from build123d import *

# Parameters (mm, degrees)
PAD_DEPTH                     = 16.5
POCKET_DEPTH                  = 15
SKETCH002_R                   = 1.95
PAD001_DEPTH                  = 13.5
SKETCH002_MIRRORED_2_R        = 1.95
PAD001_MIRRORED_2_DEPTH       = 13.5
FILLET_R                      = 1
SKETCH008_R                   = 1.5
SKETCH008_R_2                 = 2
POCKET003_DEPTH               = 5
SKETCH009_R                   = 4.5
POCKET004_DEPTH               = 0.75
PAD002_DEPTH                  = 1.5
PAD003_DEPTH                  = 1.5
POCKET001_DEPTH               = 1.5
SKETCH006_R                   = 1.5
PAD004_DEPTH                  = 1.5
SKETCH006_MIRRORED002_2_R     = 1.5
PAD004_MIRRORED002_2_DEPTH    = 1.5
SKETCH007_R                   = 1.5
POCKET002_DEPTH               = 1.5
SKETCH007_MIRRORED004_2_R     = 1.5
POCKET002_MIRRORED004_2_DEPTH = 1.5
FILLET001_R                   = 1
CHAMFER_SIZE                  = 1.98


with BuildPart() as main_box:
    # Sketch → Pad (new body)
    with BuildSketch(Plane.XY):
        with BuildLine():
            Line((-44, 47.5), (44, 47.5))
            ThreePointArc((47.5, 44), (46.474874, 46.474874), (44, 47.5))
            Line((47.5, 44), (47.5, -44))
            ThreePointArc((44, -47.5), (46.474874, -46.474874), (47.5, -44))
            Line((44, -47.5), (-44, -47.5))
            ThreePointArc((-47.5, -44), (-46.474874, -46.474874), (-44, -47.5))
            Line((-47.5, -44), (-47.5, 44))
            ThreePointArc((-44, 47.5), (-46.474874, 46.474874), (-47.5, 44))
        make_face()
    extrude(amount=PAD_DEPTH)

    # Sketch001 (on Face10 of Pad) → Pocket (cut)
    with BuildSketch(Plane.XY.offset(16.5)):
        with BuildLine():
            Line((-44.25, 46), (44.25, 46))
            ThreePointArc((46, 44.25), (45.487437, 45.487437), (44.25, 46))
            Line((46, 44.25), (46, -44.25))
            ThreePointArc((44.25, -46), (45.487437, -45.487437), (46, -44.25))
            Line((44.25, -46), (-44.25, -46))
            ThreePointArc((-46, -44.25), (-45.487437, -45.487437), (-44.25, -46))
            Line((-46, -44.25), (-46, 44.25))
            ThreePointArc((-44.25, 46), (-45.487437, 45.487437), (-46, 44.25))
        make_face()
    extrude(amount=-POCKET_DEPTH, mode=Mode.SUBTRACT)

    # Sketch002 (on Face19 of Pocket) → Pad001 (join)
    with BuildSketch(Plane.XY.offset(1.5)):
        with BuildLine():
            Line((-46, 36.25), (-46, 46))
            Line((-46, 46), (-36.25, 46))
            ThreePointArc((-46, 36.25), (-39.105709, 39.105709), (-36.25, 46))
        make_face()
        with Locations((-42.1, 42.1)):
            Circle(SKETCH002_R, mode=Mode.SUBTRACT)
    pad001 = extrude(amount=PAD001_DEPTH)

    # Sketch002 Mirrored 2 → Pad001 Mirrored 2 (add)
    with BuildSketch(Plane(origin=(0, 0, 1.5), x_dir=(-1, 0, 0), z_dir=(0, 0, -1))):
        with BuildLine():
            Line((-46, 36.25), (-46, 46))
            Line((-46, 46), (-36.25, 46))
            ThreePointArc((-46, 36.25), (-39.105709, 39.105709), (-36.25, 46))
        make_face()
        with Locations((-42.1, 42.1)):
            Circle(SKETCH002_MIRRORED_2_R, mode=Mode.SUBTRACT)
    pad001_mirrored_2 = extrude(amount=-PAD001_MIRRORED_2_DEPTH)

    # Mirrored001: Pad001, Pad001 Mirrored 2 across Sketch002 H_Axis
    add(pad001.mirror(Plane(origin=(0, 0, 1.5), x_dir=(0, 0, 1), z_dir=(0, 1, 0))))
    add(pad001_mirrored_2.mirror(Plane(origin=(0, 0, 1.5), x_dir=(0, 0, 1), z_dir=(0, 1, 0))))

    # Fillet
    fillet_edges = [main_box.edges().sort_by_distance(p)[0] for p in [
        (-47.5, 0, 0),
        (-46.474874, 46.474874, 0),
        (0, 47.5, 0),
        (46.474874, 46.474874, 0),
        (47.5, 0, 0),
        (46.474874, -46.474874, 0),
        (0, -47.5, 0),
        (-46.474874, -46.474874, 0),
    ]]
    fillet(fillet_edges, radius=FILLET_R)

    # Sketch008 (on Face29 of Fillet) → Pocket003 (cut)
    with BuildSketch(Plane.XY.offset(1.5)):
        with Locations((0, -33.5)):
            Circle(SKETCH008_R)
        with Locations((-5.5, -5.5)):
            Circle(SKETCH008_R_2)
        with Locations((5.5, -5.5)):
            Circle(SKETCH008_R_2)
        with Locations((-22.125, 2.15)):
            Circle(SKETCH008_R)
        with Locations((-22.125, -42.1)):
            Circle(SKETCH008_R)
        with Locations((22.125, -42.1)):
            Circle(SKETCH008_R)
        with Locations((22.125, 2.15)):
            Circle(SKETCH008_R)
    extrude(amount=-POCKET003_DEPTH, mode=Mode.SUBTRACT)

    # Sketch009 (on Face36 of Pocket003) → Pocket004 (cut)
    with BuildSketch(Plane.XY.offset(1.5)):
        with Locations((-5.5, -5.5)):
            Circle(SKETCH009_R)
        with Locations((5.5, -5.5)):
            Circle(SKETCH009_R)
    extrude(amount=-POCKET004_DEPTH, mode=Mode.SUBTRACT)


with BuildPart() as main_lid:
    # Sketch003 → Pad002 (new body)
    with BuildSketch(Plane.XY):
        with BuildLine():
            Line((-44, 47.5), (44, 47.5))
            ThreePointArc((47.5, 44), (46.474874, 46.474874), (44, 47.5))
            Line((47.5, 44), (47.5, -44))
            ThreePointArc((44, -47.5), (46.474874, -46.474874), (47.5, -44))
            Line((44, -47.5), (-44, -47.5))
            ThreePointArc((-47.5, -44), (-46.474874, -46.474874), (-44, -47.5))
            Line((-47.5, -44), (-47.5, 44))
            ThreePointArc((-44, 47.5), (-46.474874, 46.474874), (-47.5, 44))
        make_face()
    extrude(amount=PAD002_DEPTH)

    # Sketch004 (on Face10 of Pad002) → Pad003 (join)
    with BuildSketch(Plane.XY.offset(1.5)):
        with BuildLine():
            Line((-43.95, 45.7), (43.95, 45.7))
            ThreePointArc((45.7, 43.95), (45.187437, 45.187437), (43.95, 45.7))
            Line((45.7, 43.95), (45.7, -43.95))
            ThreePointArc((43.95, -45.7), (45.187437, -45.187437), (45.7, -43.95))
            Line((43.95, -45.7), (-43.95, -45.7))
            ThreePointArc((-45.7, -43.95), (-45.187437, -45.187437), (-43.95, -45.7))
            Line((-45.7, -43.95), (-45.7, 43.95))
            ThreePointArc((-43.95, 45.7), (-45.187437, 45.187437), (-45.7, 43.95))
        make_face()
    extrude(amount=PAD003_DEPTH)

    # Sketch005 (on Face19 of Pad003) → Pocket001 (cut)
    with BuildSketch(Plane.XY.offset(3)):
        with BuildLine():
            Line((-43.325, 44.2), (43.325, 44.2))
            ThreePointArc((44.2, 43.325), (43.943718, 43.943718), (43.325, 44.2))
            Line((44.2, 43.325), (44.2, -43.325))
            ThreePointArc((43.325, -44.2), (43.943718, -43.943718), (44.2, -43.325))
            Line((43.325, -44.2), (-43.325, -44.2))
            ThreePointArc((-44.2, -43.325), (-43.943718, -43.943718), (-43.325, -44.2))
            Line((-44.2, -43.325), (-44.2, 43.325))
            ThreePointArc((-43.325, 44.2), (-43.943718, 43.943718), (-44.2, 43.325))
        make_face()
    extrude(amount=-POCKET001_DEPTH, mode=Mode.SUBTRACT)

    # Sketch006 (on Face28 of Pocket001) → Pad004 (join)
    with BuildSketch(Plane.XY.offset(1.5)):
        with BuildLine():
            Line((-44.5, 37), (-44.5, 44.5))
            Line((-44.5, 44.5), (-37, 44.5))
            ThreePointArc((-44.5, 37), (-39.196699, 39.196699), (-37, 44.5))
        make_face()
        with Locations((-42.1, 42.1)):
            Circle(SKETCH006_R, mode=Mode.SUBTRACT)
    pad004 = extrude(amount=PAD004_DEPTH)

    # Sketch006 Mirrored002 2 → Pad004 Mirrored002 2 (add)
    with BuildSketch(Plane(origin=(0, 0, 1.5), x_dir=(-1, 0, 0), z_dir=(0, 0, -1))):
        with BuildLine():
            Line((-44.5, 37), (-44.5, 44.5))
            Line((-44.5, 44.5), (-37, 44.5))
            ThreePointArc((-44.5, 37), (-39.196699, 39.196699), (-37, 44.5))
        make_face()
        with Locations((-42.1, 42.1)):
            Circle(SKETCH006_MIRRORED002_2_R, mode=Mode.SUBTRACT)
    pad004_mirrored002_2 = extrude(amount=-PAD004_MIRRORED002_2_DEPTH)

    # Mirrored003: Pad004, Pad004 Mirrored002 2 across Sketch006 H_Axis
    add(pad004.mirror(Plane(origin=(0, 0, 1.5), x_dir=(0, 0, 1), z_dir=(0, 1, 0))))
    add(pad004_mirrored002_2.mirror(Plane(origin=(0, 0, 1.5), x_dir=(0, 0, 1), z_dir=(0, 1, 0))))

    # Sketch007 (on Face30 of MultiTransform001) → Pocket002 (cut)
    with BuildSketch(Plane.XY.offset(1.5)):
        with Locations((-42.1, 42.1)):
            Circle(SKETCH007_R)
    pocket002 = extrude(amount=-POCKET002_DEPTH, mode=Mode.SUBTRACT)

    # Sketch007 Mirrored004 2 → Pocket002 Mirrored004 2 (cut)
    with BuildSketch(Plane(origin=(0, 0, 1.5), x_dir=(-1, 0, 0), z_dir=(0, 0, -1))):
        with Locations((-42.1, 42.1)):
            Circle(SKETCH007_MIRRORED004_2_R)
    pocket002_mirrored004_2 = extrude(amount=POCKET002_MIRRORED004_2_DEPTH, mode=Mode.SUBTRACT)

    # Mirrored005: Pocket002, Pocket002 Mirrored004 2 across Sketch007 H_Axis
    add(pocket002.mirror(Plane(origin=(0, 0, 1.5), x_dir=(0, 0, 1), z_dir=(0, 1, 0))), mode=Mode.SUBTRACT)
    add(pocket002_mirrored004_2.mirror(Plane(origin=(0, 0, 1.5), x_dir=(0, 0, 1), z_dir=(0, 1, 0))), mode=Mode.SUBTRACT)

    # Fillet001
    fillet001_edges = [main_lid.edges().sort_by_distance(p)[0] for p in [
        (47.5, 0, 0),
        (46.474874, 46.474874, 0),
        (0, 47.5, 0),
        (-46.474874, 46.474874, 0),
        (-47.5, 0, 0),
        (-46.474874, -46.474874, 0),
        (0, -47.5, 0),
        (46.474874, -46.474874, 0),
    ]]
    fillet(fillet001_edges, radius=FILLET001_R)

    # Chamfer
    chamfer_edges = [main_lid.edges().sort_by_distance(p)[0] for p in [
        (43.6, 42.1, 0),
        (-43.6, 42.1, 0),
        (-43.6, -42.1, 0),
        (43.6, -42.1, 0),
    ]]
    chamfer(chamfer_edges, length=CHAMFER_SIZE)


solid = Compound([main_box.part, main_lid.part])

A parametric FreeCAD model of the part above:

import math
import FreeCAD as App
import Part
import Sketcher
Q = App.Units.Quantity


def edges_at(feature, points):
    """Names of the edges that pass closest to the given points."""
    edges = feature.Shape.Edges
    near = lambda p: min(range(len(edges)), key=lambda i: edges[i].distToShape(Part.Vertex(*p))[0])
    return sorted({f"Edge{near(p) + 1}" for p in points})

doc = App.newDocument("Part")
params = doc.addObject("Spreadsheet::Sheet", "Params")
for row, (alias, value) in enumerate([
    ("sketch1_radius", "3.499999 mm"),
    ("sketch1_width", "88 mm"),
    ("pad1_length", "16.5 mm"),
    ("sketch2_radius", "1.75 mm"),
    ("sketch2_width", "88.5 mm"),
    ("pocket1_length", "15 mm"),
    ("sketch3_diameter", "3.9 mm"),
    ("sketch3_radius", "9.75 mm"),
    ("pad2_length", "13.5 mm"),
    ("sketch4_diameter", "3.9 mm"),
    ("sketch4_radius", "9.75 mm"),
    ("pad3_length", "13.5 mm"),
    ("fillet_radius", "1 mm"),
    ("sketch5_diameter", "3 mm"),
    ("sketch5_diameter2", "4 mm"),
    ("pocket2_length", "5 mm"),
    ("sketch6_diameter", "9 mm"),
    ("pocket3_length", "0.75 mm"),
    ("sketch7_radius", "3.499999 mm"),
    ("sketch7_width", "88 mm"),
    ("pad4_length", "1.5 mm"),
    ("sketch8_radius", "1.75 mm"),
    ("sketch8_width", "87.9 mm"),
    ("pad5_length", "1.5 mm"),
    ("sketch9_width", "86.65 mm"),
    ("pocket4_length", "1.5 mm"),
    ("sketch10_diameter", "3 mm"),
    ("sketch10_radius", "7.5 mm"),
    ("pad6_length", "1.5 mm"),
    ("sketch11_diameter", "3 mm"),
    ("sketch11_radius", "7.5 mm"),
    ("pad7_length", "1.5 mm"),
    ("sketch12_diameter", "3 mm"),
    ("pocket5_length", "1.5 mm"),
    ("sketch13_diameter", "3 mm"),
    ("pocket6_length", "1.5 mm"),
    ("fillet2_radius", "1 mm"),
    ("chamfer_size", "1.98 mm"),
], start=1):
    params.set(f"A{row}", alias)
    params.set(f"B{row}", "=" + value)
    params.setAlias(f"B{row}", alias)

body = doc.addObject("PartDesign::Body", "Body")

# Sketch on XY plane
sketch1 = body.newObject("Sketcher::SketchObject", "Sketch")
sketch1.AttachmentSupport = (doc.getObject("XY_Plane"), [""])
sketch1.MapMode = "FlatFace"
sketch1.addGeometry(Part.LineSegment(App.Vector(44, 47.5, 0), App.Vector(-44, 47.5, 0)), False)
sketch1.addGeometry(Part.ArcOfCircle(Part.Circle(App.Vector(-44, 44, 0), App.Vector(0, 0, 1), 3.5), math.radians(90), math.radians(180)), False)
sketch1.addGeometry(Part.LineSegment(App.Vector(-47.5, 44, 0), App.Vector(-47.5, -44, 0)), False)
sketch1.addGeometry(Part.ArcOfCircle(Part.Circle(App.Vector(-44, -44, 0), App.Vector(0, 0, 1), 3.5), math.radians(180), math.radians(270)), False)
sketch1.addGeometry(Part.LineSegment(App.Vector(-44, -47.5, 0), App.Vector(44, -47.5, 0)), False)
sketch1.addGeometry(Part.ArcOfCircle(Part.Circle(App.Vector(44, -44, 0), App.Vector(0, 0, 1), 3.5), math.radians(-90), math.radians(0)), False)
sketch1.addGeometry(Part.LineSegment(App.Vector(47.5, -44, 0), App.Vector(47.5, 44, 0)), False)
sketch1.addGeometry(Part.ArcOfCircle(Part.Circle(App.Vector(44, 44, 0), App.Vector(0, 0, 1), 3.5), math.radians(0), math.radians(90)), False)
sketch1.addConstraint(Sketcher.Constraint("Tangent", 0, 2, 1, 1))
sketch1.addConstraint(Sketcher.Constraint("Tangent", 1, 2, 2, 1))
sketch1.addConstraint(Sketcher.Constraint("Tangent", 2, 2, 3, 1))
sketch1.addConstraint(Sketcher.Constraint("Tangent", 3, 2, 4, 1))
sketch1.addConstraint(Sketcher.Constraint("Tangent", 4, 2, 5, 1))
sketch1.addConstraint(Sketcher.Constraint("Tangent", 5, 2, 6, 1))
sketch1.addConstraint(Sketcher.Constraint("Tangent", 6, 2, 7, 1))
sketch1.addConstraint(Sketcher.Constraint("Tangent", 7, 2, 0, 1))
sketch1.addConstraint(Sketcher.Constraint("Horizontal", 0))
sketch1.addConstraint(Sketcher.Constraint("Vertical", 2))
sketch1.addConstraint(Sketcher.Constraint("Horizontal", 4))
sketch1.addConstraint(Sketcher.Constraint("Vertical", 6))
sketch1.addConstraint(Sketcher.Constraint("Equal", 1, 3))
sketch1.addConstraint(Sketcher.Constraint("Equal", 3, 5))
sketch1.addConstraint(Sketcher.Constraint("Equal", 5, 7))
sketch1.addConstraint(Sketcher.Constraint("Symmetric", 1, 3, 5, 3, -1, 1))
sketch1.addConstraint(Sketcher.Constraint("Equal", 4, 2))
sketch1.addConstraint(Sketcher.Constraint("Radius", 1, Q("3.499999 mm")))
sketch1.addConstraint(Sketcher.Constraint("DistanceX", 0, 2, 0, 1, Q("88 mm")))
sketch1.setExpression("Constraints[17]", "Params.sketch1_radius")
sketch1.setExpression("Constraints[18]", "Params.sketch1_width")
pad1 = body.newObject("PartDesign::Pad", "Pad")
pad1.Profile = sketch1
pad1.setExpression("Length", "Params.pad1_length")

# Sketch on XY plane
sketch2 = body.newObject("Sketcher::SketchObject", "Sketch001")
sketch2.AttachmentSupport = (doc.getObject("XY_Plane"), [""])
sketch2.MapMode = "FlatFace"
sketch2.AttachmentOffset = App.Placement(App.Vector(0, 0, 16.5), App.Rotation())
sketch2.addGeometry(Part.LineSegment(App.Vector(44.2, 46, 0), App.Vector(-44.2, 46, 0)), False)
sketch2.addGeometry(Part.ArcOfCircle(Part.Circle(App.Vector(-44.3, 44.3, 0), App.Vector(0, 0, 1), 1.7), math.radians(90), math.radians(180)), False)
sketch2.addGeometry(Part.LineSegment(App.Vector(-46, 44.2, 0), App.Vector(-46, -44.2, 0)), False)
sketch2.addGeometry(Part.ArcOfCircle(Part.Circle(App.Vector(-44.3, -44.3, 0), App.Vector(0, 0, 1), 1.7), math.radians(180), math.radians(270)), False)
sketch2.addGeometry(Part.LineSegment(App.Vector(-44.2, -46, 0), App.Vector(44.2, -46, 0)), False)
sketch2.addGeometry(Part.ArcOfCircle(Part.Circle(App.Vector(44.3, -44.3, 0), App.Vector(0, 0, 1), 1.7), math.radians(-90), math.radians(0)), False)
sketch2.addGeometry(Part.LineSegment(App.Vector(46, -44.2, 0), App.Vector(46, 44.2, 0)), False)
sketch2.addGeometry(Part.ArcOfCircle(Part.Circle(App.Vector(44.3, 44.3, 0), App.Vector(0, 0, 1), 1.7), math.radians(0), math.radians(90)), False)
sketch2.addConstraint(Sketcher.Constraint("Tangent", 0, 2, 1, 1))
sketch2.addConstraint(Sketcher.Constraint("Tangent", 1, 2, 2, 1))
sketch2.addConstraint(Sketcher.Constraint("Tangent", 2, 2, 3, 1))
sketch2.addConstraint(Sketcher.Constraint("Tangent", 3, 2, 4, 1))
sketch2.addConstraint(Sketcher.Constraint("Tangent", 4, 2, 5, 1))
sketch2.addConstraint(Sketcher.Constraint("Tangent", 5, 2, 6, 1))
sketch2.addConstraint(Sketcher.Constraint("Tangent", 6, 2, 7, 1))
sketch2.addConstraint(Sketcher.Constraint("Tangent", 7, 2, 0, 1))
sketch2.addConstraint(Sketcher.Constraint("Horizontal", 0))
sketch2.addConstraint(Sketcher.Constraint("Vertical", 2))
sketch2.addConstraint(Sketcher.Constraint("Horizontal", 4))
sketch2.addConstraint(Sketcher.Constraint("Vertical", 6))
sketch2.addConstraint(Sketcher.Constraint("Equal", 1, 3))
sketch2.addConstraint(Sketcher.Constraint("Equal", 3, 5))
sketch2.addConstraint(Sketcher.Constraint("Equal", 5, 7))
sketch2.addConstraint(Sketcher.Constraint("Symmetric", 1, 3, 5, 3, -1, 1))
sketch2.addConstraint(Sketcher.Constraint("Equal", 4, 2))
sketch2.addConstraint(Sketcher.Constraint("Radius", 1, Q("1.75 mm")))
sketch2.addConstraint(Sketcher.Constraint("DistanceX", 0, 2, 0, 1, Q("88.5 mm")))
sketch2.setExpression("Constraints[17]", "Params.sketch2_radius")
sketch2.setExpression("Constraints[18]", "Params.sketch2_width")
pocket1 = body.newObject("PartDesign::Pocket", "Pocket")
pocket1.Profile = sketch2
pocket1.setExpression("Length", "Params.pocket1_length")

# Sketch on XY plane
sketch3 = body.newObject("Sketcher::SketchObject", "Sketch002")
sketch3.AttachmentSupport = (doc.getObject("XY_Plane"), [""])
sketch3.MapMode = "FlatFace"
sketch3.AttachmentOffset = App.Placement(App.Vector(0, 0, 1.5), App.Rotation())
sketch3.addGeometry(Part.LineSegment(App.Vector(-46, 46, 0), App.Vector(-46, 36.2, 0)), False)
sketch3.addGeometry(Part.ArcOfCircle(Part.Circle(App.Vector(-46, 46, 0), App.Vector(0, 0, 1), 9.8), math.radians(-90), math.radians(0)), False)
sketch3.addGeometry(Part.LineSegment(App.Vector(-36.2, 46, 0), App.Vector(-46, 46, 0)), False)
sketch3.addGeometry(Part.Circle(App.Vector(-42.1, 42.1, 0), App.Vector(0, 0, 1), 1.9), False)
sketch3.addConstraint(Sketcher.Constraint("Coincident", 0, 2, 1, 1))
sketch3.addConstraint(Sketcher.Constraint("Coincident", 1, 2, 2, 1))
sketch3.addConstraint(Sketcher.Constraint("Coincident", 2, 2, 0, 1))
sketch3.addConstraint(Sketcher.Constraint("Vertical", 0))
sketch3.addConstraint(Sketcher.Constraint("Horizontal", 2))
sketch3.addConstraint(Sketcher.Constraint("Coincident", 2, 2, 1, 3))
sketch3.addConstraint(Sketcher.Constraint("Diameter", 3, Q("3.9 mm")))
sketch3.addConstraint(Sketcher.Constraint("Radius", 1, Q("9.75 mm")))
sketch3.addConstraint(Sketcher.Constraint("DistanceX", 1, 3, -1, 1, Q("46 mm")))
sketch3.addConstraint(Sketcher.Constraint("DistanceY", -1, 1, 1, 3, Q("46 mm")))
sketch3.addConstraint(Sketcher.Constraint("DistanceX", 3, 3, -1, 1, Q("42.1 mm")))
sketch3.addConstraint(Sketcher.Constraint("DistanceY", -1, 1, 3, 3, Q("42.1 mm")))
sketch3.setExpression("Constraints[6]", "Params.sketch3_diameter")
sketch3.setExpression("Constraints[7]", "Params.sketch3_radius")
pad2 = body.newObject("PartDesign::Pad", "Pad001")
pad2.Profile = sketch3
pad2.setExpression("Length", "Params.pad2_length")

# Sketch on XY plane
sketch4 = body.newObject("Sketcher::SketchObject", "Sketch003")
sketch4.AttachmentSupport = (doc.getObject("XY_Plane"), [""])
sketch4.MapMode = "FlatFace"
sketch4.AttachmentOffset = App.Placement(App.Vector(0, 0, 1.5), App.Rotation())
sketch4.addGeometry(Part.LineSegment(App.Vector(46, 46, 0), App.Vector(46, 36.2, 0)), False)
sketch4.addGeometry(Part.ArcOfCircle(Part.Circle(App.Vector(46, 46, 0), App.Vector(0, 0, 1), 9.8), math.radians(-180), math.radians(-90)), False)
sketch4.addGeometry(Part.LineSegment(App.Vector(36.2, 46, 0), App.Vector(46, 46, 0)), False)
sketch4.addGeometry(Part.Circle(App.Vector(42.1, 42.1, 0), App.Vector(0, 0, 1), 1.9), False)
sketch4.addConstraint(Sketcher.Constraint("Coincident", 0, 2, 1, 2))
sketch4.addConstraint(Sketcher.Constraint("Coincident", 1, 1, 2, 1))
sketch4.addConstraint(Sketcher.Constraint("Coincident", 2, 2, 0, 1))
sketch4.addConstraint(Sketcher.Constraint("Vertical", 0))
sketch4.addConstraint(Sketcher.Constraint("Horizontal", 2))
sketch4.addConstraint(Sketcher.Constraint("Coincident", 2, 2, 1, 3))
sketch4.addConstraint(Sketcher.Constraint("Diameter", 3, Q("3.9 mm")))
sketch4.addConstraint(Sketcher.Constraint("Radius", 1, Q("9.75 mm")))
sketch4.addConstraint(Sketcher.Constraint("DistanceX", -1, 1, 1, 3, Q("46 mm")))
sketch4.addConstraint(Sketcher.Constraint("DistanceY", -1, 1, 1, 3, Q("46 mm")))
sketch4.addConstraint(Sketcher.Constraint("DistanceX", -1, 1, 3, 3, Q("42.1 mm")))
sketch4.addConstraint(Sketcher.Constraint("DistanceY", -1, 1, 3, 3, Q("42.1 mm")))
sketch4.setExpression("Constraints[6]", "Params.sketch4_diameter")
sketch4.setExpression("Constraints[7]", "Params.sketch4_radius")
pad3 = body.newObject("PartDesign::Pad", "Pad002")
pad3.Profile = sketch4
pad3.setExpression("Length", "Params.pad3_length")
doc.recompute()

mirrored = body.newObject("PartDesign::Mirrored", "Mirrored")
mirrored.Originals = [pad2, pad3]
mirrored.MirrorPlane = (doc.getObject("XZ_Plane"), [""])
body.Tip = mirrored
doc.recompute()

fillet = body.newObject("PartDesign::Fillet", "Fillet")
fillet.Base = (mirrored, edges_at(mirrored, [
    (-47.5, 0, 0),
    (-46.475, 46.475, 0),
    (0, 47.5, 0),
    (46.475, 46.475, 0),
    (47.5, 0, 0),
    (46.475, -46.475, 0),
    (0, -47.5, 0),
    (-46.475, -46.475, 0),
]))
fillet.setExpression("Radius", "Params.fillet_radius")

# Sketch on XY plane
sketch5 = body.newObject("Sketcher::SketchObject", "Sketch004")
sketch5.AttachmentSupport = (doc.getObject("XY_Plane"), [""])
sketch5.MapMode = "FlatFace"
sketch5.AttachmentOffset = App.Placement(App.Vector(0, 0, 1.5), App.Rotation())
sketch5.addGeometry(Part.Circle(App.Vector(0, -33.5, 0), App.Vector(0, 0, 1), 1.5), False)
sketch5.addGeometry(Part.Circle(App.Vector(-5.5, -5.5, 0), App.Vector(0, 0, 1), 2), False)
sketch5.addGeometry(Part.Circle(App.Vector(5.5, -5.5, 0), App.Vector(0, 0, 1), 2), False)
sketch5.addGeometry(Part.Circle(App.Vector(-22.1, 2.1, 0), App.Vector(0, 0, 1), 1.5), False)
sketch5.addGeometry(Part.Circle(App.Vector(-22.1, -42.1, 0), App.Vector(0, 0, 1), 1.5), False)
sketch5.addGeometry(Part.Circle(App.Vector(22.1, -42.1, 0), App.Vector(0, 0, 1), 1.5), False)
sketch5.addGeometry(Part.Circle(App.Vector(22.1, 2.1, 0), App.Vector(0, 0, 1), 1.5), False)
sketch5.addConstraint(Sketcher.Constraint("Equal", 1, 2))
sketch5.addConstraint(Sketcher.Constraint("Equal", 0, 3))
sketch5.addConstraint(Sketcher.Constraint("Equal", 3, 4))
sketch5.addConstraint(Sketcher.Constraint("Equal", 4, 5))
sketch5.addConstraint(Sketcher.Constraint("Equal", 5, 6))
sketch5.addConstraint(Sketcher.Constraint("Symmetric", 1, 3, 2, 3, -2))
sketch5.addConstraint(Sketcher.Constraint("Symmetric", 4, 3, 5, 3, -2))
sketch5.addConstraint(Sketcher.Constraint("Symmetric", 3, 3, 6, 3, -2))
sketch5.addConstraint(Sketcher.Constraint("PointOnObject", 0, 3, -2))
sketch5.addConstraint(Sketcher.Constraint("Vertical", 3, 3, 4, 3))
sketch5.addConstraint(Sketcher.Constraint("Diameter", 0, Q("3 mm")))
sketch5.addConstraint(Sketcher.Constraint("Diameter", 1, Q("4 mm")))
sketch5.addConstraint(Sketcher.Constraint("DistanceY", 0, 3, 1, 3, Q("28 mm")))
sketch5.addConstraint(Sketcher.Constraint("DistanceX", 1, 3, 2, 3, Q("11 mm")))
sketch5.addConstraint(Sketcher.Constraint("DistanceY", 0, 3, -1, 1, Q("33.5 mm")))
sketch5.addConstraint(Sketcher.Constraint("DistanceY", 4, 3, -1, 1, Q("42.1 mm")))
sketch5.addConstraint(Sketcher.Constraint("DistanceY", -1, 1, 3, 3, Q("2.15 mm")))
sketch5.addConstraint(Sketcher.Constraint("DistanceX", 4, 3, 5, 3, Q("44.25 mm")))
sketch5.setExpression("Constraints[10]", "Params.sketch5_diameter")
sketch5.setExpression("Constraints[11]", "Params.sketch5_diameter2")
pocket2 = body.newObject("PartDesign::Pocket", "Pocket001")
pocket2.Profile = sketch5
pocket2.setExpression("Length", "Params.pocket2_length")

# Sketch on XY plane
sketch6 = body.newObject("Sketcher::SketchObject", "Sketch005")
sketch6.AttachmentSupport = (doc.getObject("XY_Plane"), [""])
sketch6.MapMode = "FlatFace"
sketch6.AttachmentOffset = App.Placement(App.Vector(0, 0, 1.5), App.Rotation())
sketch6.addGeometry(Part.Circle(App.Vector(-5.5, -5.5, 0), App.Vector(0, 0, 1), 4.5), False)
sketch6.addGeometry(Part.Circle(App.Vector(5.5, -5.5, 0), App.Vector(0, 0, 1), 4.5), False)
sketch6.addConstraint(Sketcher.Constraint("Equal", 0, 1))
sketch6.addConstraint(Sketcher.Constraint("Symmetric", 0, 3, 1, 3, -2))
sketch6.addConstraint(Sketcher.Constraint("Diameter", 0, Q("9 mm")))
sketch6.addConstraint(Sketcher.Constraint("DistanceX", 0, 3, 1, 3, Q("11 mm")))
sketch6.addConstraint(Sketcher.Constraint("DistanceY", 0, 3, -1, 1, Q("5.5 mm")))
sketch6.setExpression("Constraints[2]", "Params.sketch6_diameter")
pocket3 = body.newObject("PartDesign::Pocket", "Pocket002")
pocket3.Profile = sketch6
pocket3.setExpression("Length", "Params.pocket3_length")
body2 = doc.addObject("PartDesign::Body", "Body001")

# Sketch on XY plane
sketch7 = body2.newObject("Sketcher::SketchObject", "Sketch006")
sketch7.AttachmentSupport = (doc.getObject("XY_Plane001"), [""])
sketch7.MapMode = "FlatFace"
sketch7.addGeometry(Part.LineSegment(App.Vector(44, 47.5, 0), App.Vector(-44, 47.5, 0)), False)
sketch7.addGeometry(Part.ArcOfCircle(Part.Circle(App.Vector(-44, 44, 0), App.Vector(0, 0, 1), 3.5), math.radians(90), math.radians(180)), False)
sketch7.addGeometry(Part.LineSegment(App.Vector(-47.5, 44, 0), App.Vector(-47.5, -44, 0)), False)
sketch7.addGeometry(Part.ArcOfCircle(Part.Circle(App.Vector(-44, -44, 0), App.Vector(0, 0, 1), 3.5), math.radians(180), math.radians(270)), False)
sketch7.addGeometry(Part.LineSegment(App.Vector(-44, -47.5, 0), App.Vector(44, -47.5, 0)), False)
sketch7.addGeometry(Part.ArcOfCircle(Part.Circle(App.Vector(44, -44, 0), App.Vector(0, 0, 1), 3.5), math.radians(-90), math.radians(0)), False)
sketch7.addGeometry(Part.LineSegment(App.Vector(47.5, -44, 0), App.Vector(47.5, 44, 0)), False)
sketch7.addGeometry(Part.ArcOfCircle(Part.Circle(App.Vector(44, 44, 0), App.Vector(0, 0, 1), 3.5), math.radians(0), math.radians(90)), False)
sketch7.addConstraint(Sketcher.Constraint("Tangent", 0, 2, 1, 1))
sketch7.addConstraint(Sketcher.Constraint("Tangent", 1, 2, 2, 1))
sketch7.addConstraint(Sketcher.Constraint("Tangent", 2, 2, 3, 1))
sketch7.addConstraint(Sketcher.Constraint("Tangent", 3, 2, 4, 1))
sketch7.addConstraint(Sketcher.Constraint("Tangent", 4, 2, 5, 1))
sketch7.addConstraint(Sketcher.Constraint("Tangent", 5, 2, 6, 1))
sketch7.addConstraint(Sketcher.Constraint("Tangent", 6, 2, 7, 1))
sketch7.addConstraint(Sketcher.Constraint("Tangent", 7, 2, 0, 1))
sketch7.addConstraint(Sketcher.Constraint("Horizontal", 0))
sketch7.addConstraint(Sketcher.Constraint("Vertical", 2))
sketch7.addConstraint(Sketcher.Constraint("Horizontal", 4))
sketch7.addConstraint(Sketcher.Constraint("Vertical", 6))
sketch7.addConstraint(Sketcher.Constraint("Equal", 1, 3))
sketch7.addConstraint(Sketcher.Constraint("Equal", 3, 5))
sketch7.addConstraint(Sketcher.Constraint("Equal", 5, 7))
sketch7.addConstraint(Sketcher.Constraint("Symmetric", 1, 3, 5, 3, -1, 1))
sketch7.addConstraint(Sketcher.Constraint("Equal", 4, 2))
sketch7.addConstraint(Sketcher.Constraint("Radius", 1, Q("3.499999 mm")))
sketch7.addConstraint(Sketcher.Constraint("DistanceX", 0, 2, 0, 1, Q("88 mm")))
sketch7.setExpression("Constraints[17]", "Params.sketch7_radius")
sketch7.setExpression("Constraints[18]", "Params.sketch7_width")
pad4 = body2.newObject("PartDesign::Pad", "Pad003")
pad4.Profile = sketch7
pad4.setExpression("Length", "Params.pad4_length")

# Sketch on XY plane
sketch8 = body2.newObject("Sketcher::SketchObject", "Sketch007")
sketch8.AttachmentSupport = (doc.getObject("XY_Plane001"), [""])
sketch8.MapMode = "FlatFace"
sketch8.AttachmentOffset = App.Placement(App.Vector(0, 0, 1.5), App.Rotation())
sketch8.addGeometry(Part.LineSegment(App.Vector(44, 45.7, 0), App.Vector(-44, 45.7, 0)), False)
sketch8.addGeometry(Part.ArcOfCircle(Part.Circle(App.Vector(-44, 44, 0), App.Vector(0, 0, 1), 1.7), math.radians(90), math.radians(180)), False)
sketch8.addGeometry(Part.LineSegment(App.Vector(-45.7, 44, 0), App.Vector(-45.7, -44, 0)), False)
sketch8.addGeometry(Part.ArcOfCircle(Part.Circle(App.Vector(-44, -44, 0), App.Vector(0, 0, 1), 1.7), math.radians(180), math.radians(270)), False)
sketch8.addGeometry(Part.LineSegment(App.Vector(-44, -45.7, 0), App.Vector(44, -45.7, 0)), False)
sketch8.addGeometry(Part.ArcOfCircle(Part.Circle(App.Vector(44, -44, 0), App.Vector(0, 0, 1), 1.7), math.radians(-90), math.radians(0)), False)
sketch8.addGeometry(Part.LineSegment(App.Vector(45.7, -44, 0), App.Vector(45.7, 44, 0)), False)
sketch8.addGeometry(Part.ArcOfCircle(Part.Circle(App.Vector(44, 44, 0), App.Vector(0, 0, 1), 1.7), math.radians(0), math.radians(90)), False)
sketch8.addConstraint(Sketcher.Constraint("Tangent", 0, 2, 1, 1))
sketch8.addConstraint(Sketcher.Constraint("Tangent", 1, 2, 2, 1))
sketch8.addConstraint(Sketcher.Constraint("Tangent", 2, 2, 3, 1))
sketch8.addConstraint(Sketcher.Constraint("Tangent", 3, 2, 4, 1))
sketch8.addConstraint(Sketcher.Constraint("Tangent", 4, 2, 5, 1))
sketch8.addConstraint(Sketcher.Constraint("Tangent", 5, 2, 6, 1))
sketch8.addConstraint(Sketcher.Constraint("Tangent", 6, 2, 7, 1))
sketch8.addConstraint(Sketcher.Constraint("Tangent", 7, 2, 0, 1))
sketch8.addConstraint(Sketcher.Constraint("Horizontal", 0))
sketch8.addConstraint(Sketcher.Constraint("Vertical", 2))
sketch8.addConstraint(Sketcher.Constraint("Horizontal", 4))
sketch8.addConstraint(Sketcher.Constraint("Vertical", 6))
sketch8.addConstraint(Sketcher.Constraint("Equal", 1, 3))
sketch8.addConstraint(Sketcher.Constraint("Equal", 3, 5))
sketch8.addConstraint(Sketcher.Constraint("Equal", 5, 7))
sketch8.addConstraint(Sketcher.Constraint("Symmetric", 1, 3, 5, 3, -1, 1))
sketch8.addConstraint(Sketcher.Constraint("Equal", 4, 2))
sketch8.addConstraint(Sketcher.Constraint("Radius", 1, Q("1.75 mm")))
sketch8.addConstraint(Sketcher.Constraint("DistanceX", 0, 2, 0, 1, Q("87.9 mm")))
sketch8.setExpression("Constraints[17]", "Params.sketch8_radius")
sketch8.setExpression("Constraints[18]", "Params.sketch8_width")
pad5 = body2.newObject("PartDesign::Pad", "Pad004")
pad5.Profile = sketch8
pad5.setExpression("Length", "Params.pad5_length")

# Sketch on XY plane
sketch9 = body2.newObject("Sketcher::SketchObject", "Sketch008")
sketch9.AttachmentSupport = (doc.getObject("XY_Plane001"), [""])
sketch9.MapMode = "FlatFace"
sketch9.AttachmentOffset = App.Placement(App.Vector(0, 0, 3), App.Rotation())
sketch9.addGeometry(Part.LineSegment(App.Vector(43.3, 44.2, 0), App.Vector(-43.3, 44.2, 0)), False)
sketch9.addGeometry(Part.ArcOfCircle(Part.Circle(App.Vector(-43.3, 43.3, 0), App.Vector(0, 0, 1), 0.9), math.radians(90), math.radians(180)), False)
sketch9.addGeometry(Part.LineSegment(App.Vector(-44.2, 43.3, 0), App.Vector(-44.2, -43.3, 0)), False)
sketch9.addGeometry(Part.ArcOfCircle(Part.Circle(App.Vector(-43.3, -43.3, 0), App.Vector(0, 0, 1), 0.9), math.radians(-180), math.radians(-90)), False)
sketch9.addGeometry(Part.LineSegment(App.Vector(-43.3, -44.2, 0), App.Vector(43.3, -44.2, 0)), False)
sketch9.addGeometry(Part.ArcOfCircle(Part.Circle(App.Vector(43.3, -43.3, 0), App.Vector(0, 0, 1), 0.9), math.radians(-90), math.radians(0)), False)
sketch9.addGeometry(Part.LineSegment(App.Vector(44.2, -43.3, 0), App.Vector(44.2, 43.3, 0)), False)
sketch9.addGeometry(Part.ArcOfCircle(Part.Circle(App.Vector(43.3, 43.3, 0), App.Vector(0, 0, 1), 0.9), math.radians(0), math.radians(90)), False)
sketch9.addConstraint(Sketcher.Constraint("Tangent", 0, 2, 1, 1))
sketch9.addConstraint(Sketcher.Constraint("Tangent", 1, 2, 2, 1))
sketch9.addConstraint(Sketcher.Constraint("Tangent", 2, 2, 3, 1))
sketch9.addConstraint(Sketcher.Constraint("Tangent", 3, 2, 4, 1))
sketch9.addConstraint(Sketcher.Constraint("Tangent", 4, 2, 5, 1))
sketch9.addConstraint(Sketcher.Constraint("Tangent", 5, 2, 6, 1))
sketch9.addConstraint(Sketcher.Constraint("Tangent", 6, 2, 7, 1))
sketch9.addConstraint(Sketcher.Constraint("Tangent", 7, 2, 0, 1))
sketch9.addConstraint(Sketcher.Constraint("Horizontal", 0))
sketch9.addConstraint(Sketcher.Constraint("Vertical", 2))
sketch9.addConstraint(Sketcher.Constraint("Horizontal", 4))
sketch9.addConstraint(Sketcher.Constraint("Vertical", 6))
sketch9.addConstraint(Sketcher.Constraint("Equal", 1, 3))
sketch9.addConstraint(Sketcher.Constraint("Equal", 3, 5))
sketch9.addConstraint(Sketcher.Constraint("Equal", 5, 7))
sketch9.addConstraint(Sketcher.Constraint("Symmetric", 1, 3, 5, 3, -1, 1))
sketch9.addConstraint(Sketcher.Constraint("Equal", 4, 2))
sketch9.addConstraint(Sketcher.Constraint("Radius", 1, Q("0.875001 mm")))
sketch9.addConstraint(Sketcher.Constraint("DistanceX", 0, 2, 0, 1, Q("86.65 mm")))
sketch9.setExpression("Constraints[18]", "Params.sketch9_width")
pocket4 = body2.newObject("PartDesign::Pocket", "Pocket003")
pocket4.Profile = sketch9
pocket4.setExpression("Length", "Params.pocket4_length")

# Sketch on XY plane
sketch10 = body2.newObject("Sketcher::SketchObject", "Sketch009")
sketch10.AttachmentSupport = (doc.getObject("XY_Plane001"), [""])
sketch10.MapMode = "FlatFace"
sketch10.AttachmentOffset = App.Placement(App.Vector(0, 0, 1.5), App.Rotation())
sketch10.addGeometry(Part.LineSegment(App.Vector(-44.5, 44.5, 0), App.Vector(-44.5, 37, 0)), False)
sketch10.addGeometry(Part.ArcOfCircle(Part.Circle(App.Vector(-44.5, 44.5, 0), App.Vector(0, 0, 1), 7.5), math.radians(-90), math.radians(0)), False)
sketch10.addGeometry(Part.LineSegment(App.Vector(-37, 44.5, 0), App.Vector(-44.5, 44.5, 0)), False)
sketch10.addGeometry(Part.Circle(App.Vector(-42.1, 42.1, 0), App.Vector(0, 0, 1), 1.5), False)
sketch10.addConstraint(Sketcher.Constraint("Coincident", 0, 2, 1, 1))
sketch10.addConstraint(Sketcher.Constraint("Coincident", 1, 2, 2, 1))
sketch10.addConstraint(Sketcher.Constraint("Coincident", 2, 2, 0, 1))
sketch10.addConstraint(Sketcher.Constraint("Vertical", 0))
sketch10.addConstraint(Sketcher.Constraint("Horizontal", 2))
sketch10.addConstraint(Sketcher.Constraint("Coincident", 2, 2, 1, 3))
sketch10.addConstraint(Sketcher.Constraint("Diameter", 3, Q("3 mm")))
sketch10.addConstraint(Sketcher.Constraint("Radius", 1, Q("7.5 mm")))
sketch10.addConstraint(Sketcher.Constraint("DistanceY", -1, 1, 0, 2, Q("37 mm")))
sketch10.addConstraint(Sketcher.Constraint("DistanceX", 1, 2, -1, 1, Q("37 mm")))
sketch10.addConstraint(Sketcher.Constraint("DistanceX", 3, 3, -1, 1, Q("42.1 mm")))
sketch10.addConstraint(Sketcher.Constraint("DistanceY", -1, 1, 3, 3, Q("42.1 mm")))
sketch10.setExpression("Constraints[6]", "Params.sketch10_diameter")
sketch10.setExpression("Constraints[7]", "Params.sketch10_radius")
pad6 = body2.newObject("PartDesign::Pad", "Pad005")
pad6.Profile = sketch10
pad6.setExpression("Length", "Params.pad6_length")

# Sketch on XY plane
sketch11 = body2.newObject("Sketcher::SketchObject", "Sketch010")
sketch11.AttachmentSupport = (doc.getObject("XY_Plane001"), [""])
sketch11.MapMode = "FlatFace"
sketch11.AttachmentOffset = App.Placement(App.Vector(0, 0, 1.5), App.Rotation())
sketch11.addGeometry(Part.LineSegment(App.Vector(44.5, 44.5, 0), App.Vector(44.5, 37, 0)), False)
sketch11.addGeometry(Part.ArcOfCircle(Part.Circle(App.Vector(44.5, 44.5, 0), App.Vector(0, 0, 1), 7.5), math.radians(180), math.radians(270)), False)
sketch11.addGeometry(Part.LineSegment(App.Vector(37, 44.5, 0), App.Vector(44.5, 44.5, 0)), False)
sketch11.addGeometry(Part.Circle(App.Vector(42.1, 42.1, 0), App.Vector(0, 0, 1), 1.5), False)
sketch11.addConstraint(Sketcher.Constraint("Coincident", 0, 2, 1, 2))
sketch11.addConstraint(Sketcher.Constraint("Coincident", 1, 1, 2, 1))
sketch11.addConstraint(Sketcher.Constraint("Coincident", 2, 2, 0, 1))
sketch11.addConstraint(Sketcher.Constraint("Vertical", 0))
sketch11.addConstraint(Sketcher.Constraint("Horizontal", 2))
sketch11.addConstraint(Sketcher.Constraint("Coincident", 2, 2, 1, 3))
sketch11.addConstraint(Sketcher.Constraint("Diameter", 3, Q("3 mm")))
sketch11.addConstraint(Sketcher.Constraint("Radius", 1, Q("7.5 mm")))
sketch11.addConstraint(Sketcher.Constraint("DistanceY", -1, 1, 0, 2, Q("37 mm")))
sketch11.addConstraint(Sketcher.Constraint("DistanceX", -1, 1, 1, 1, Q("37 mm")))
sketch11.addConstraint(Sketcher.Constraint("DistanceX", -1, 1, 3, 3, Q("42.1 mm")))
sketch11.addConstraint(Sketcher.Constraint("DistanceY", -1, 1, 3, 3, Q("42.1 mm")))
sketch11.setExpression("Constraints[6]", "Params.sketch11_diameter")
sketch11.setExpression("Constraints[7]", "Params.sketch11_radius")
pad7 = body2.newObject("PartDesign::Pad", "Pad006")
pad7.Profile = sketch11
pad7.setExpression("Length", "Params.pad7_length")
doc.recompute()

mirrored2 = body2.newObject("PartDesign::Mirrored", "Mirrored001")
mirrored2.Originals = [pad6, pad7]
mirrored2.MirrorPlane = (doc.getObject("XZ_Plane001"), [""])
body2.Tip = mirrored2

# Sketch on XY plane
sketch12 = body2.newObject("Sketcher::SketchObject", "Sketch011")
sketch12.AttachmentSupport = (doc.getObject("XY_Plane001"), [""])
sketch12.MapMode = "FlatFace"
sketch12.AttachmentOffset = App.Placement(App.Vector(0, 0, 1.5), App.Rotation())
sketch12.addGeometry(Part.Circle(App.Vector(-42.1, 42.1, 0), App.Vector(0, 0, 1), 1.5), False)
sketch12.addConstraint(Sketcher.Constraint("Diameter", 0, Q("3 mm")))
sketch12.addConstraint(Sketcher.Constraint("DistanceX", 0, 3, -1, 1, Q("42.1 mm")))
sketch12.addConstraint(Sketcher.Constraint("DistanceY", -1, 1, 0, 3, Q("42.1 mm")))
sketch12.setExpression("Constraints[0]", "Params.sketch12_diameter")
pocket5 = body2.newObject("PartDesign::Pocket", "Pocket004")
pocket5.Profile = sketch12
pocket5.setExpression("Length", "Params.pocket5_length")

# Sketch on XY plane
sketch13 = body2.newObject("Sketcher::SketchObject", "Sketch012")
sketch13.AttachmentSupport = (doc.getObject("XY_Plane001"), [""])
sketch13.MapMode = "FlatFace"
sketch13.AttachmentOffset = App.Placement(App.Vector(0, 0, 1.5), App.Rotation())
sketch13.addGeometry(Part.Circle(App.Vector(42.1, 42.1, 0), App.Vector(0, 0, 1), 1.5), False)
sketch13.addConstraint(Sketcher.Constraint("Diameter", 0, Q("3 mm")))
sketch13.addConstraint(Sketcher.Constraint("DistanceX", -1, 1, 0, 3, Q("42.1 mm")))
sketch13.addConstraint(Sketcher.Constraint("DistanceY", -1, 1, 0, 3, Q("42.1 mm")))
sketch13.setExpression("Constraints[0]", "Params.sketch13_diameter")
pocket6 = body2.newObject("PartDesign::Pocket", "Pocket005")
pocket6.Profile = sketch13
pocket6.setExpression("Length", "Params.pocket6_length")
doc.recompute()

mirrored3 = body2.newObject("PartDesign::Mirrored", "Mirrored002")
mirrored3.Originals = [pocket5, pocket6]
mirrored3.MirrorPlane = (doc.getObject("XZ_Plane001"), [""])
body2.Tip = mirrored3
doc.recompute()

fillet2 = body2.newObject("PartDesign::Fillet", "Fillet001")
fillet2.Base = (mirrored3, edges_at(mirrored3, [
    (47.5, 0, 0),
    (46.475, 46.475, 0),
    (0, 47.5, 0),
    (-46.475, 46.475, 0),
    (-47.5, 0, 0),
    (-46.475, -46.475, 0),
    (0, -47.5, 0),
    (46.475, -46.475, 0),
]))
fillet2.setExpression("Radius", "Params.fillet2_radius")
doc.recompute()

chamfer = body2.newObject("PartDesign::Chamfer", "Chamfer")
chamfer.Base = (fillet2, edges_at(fillet2, [
    (43.6, 42.1, 0),
    (-43.6, 42.1, 0),
    (-43.6, -42.1, 0),
    (43.6, -42.1, 0),
]))
chamfer.setExpression("Size", "Params.chamfer_size")

doc.recompute()
